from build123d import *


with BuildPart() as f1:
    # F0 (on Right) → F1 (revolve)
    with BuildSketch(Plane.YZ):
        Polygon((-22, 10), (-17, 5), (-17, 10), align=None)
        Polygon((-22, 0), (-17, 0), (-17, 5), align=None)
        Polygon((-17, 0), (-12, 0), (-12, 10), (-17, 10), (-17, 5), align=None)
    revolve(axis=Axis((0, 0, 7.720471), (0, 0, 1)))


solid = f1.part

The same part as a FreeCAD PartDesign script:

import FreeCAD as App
import Part
import Sketcher

V = App.Vector
Q = App.Units.Quantity

doc = App.newDocument("Part")
body = doc.addObject("PartDesign::Body", "Body")

# Sketch on YZ plane
sketch1 = body.newObject("Sketcher::SketchObject", "Sketch")
sketch1.AttachmentSupport = (doc.getObject("YZ_Plane"), [""])
sketch1.MapMode = "FlatFace"
sketch1.addGeometry([
    Part.LineSegment(V(-22, 10, 0), V(-17, 5, 0)),  # 0
    Part.LineSegment(V(-17, 5, 0), V(-22, 0, 0)),  # 1
    Part.LineSegment(V(-22, 0, 0), V(-12, 0, 0)),  # 2
    Part.LineSegment(V(-12, 0, 0), V(-12, 10, 0)),  # 3
    Part.LineSegment(V(-12, 10, 0), V(-22, 10, 0)),  # 4
], False)
sketch1.addConstraint([
    Sketcher.Constraint("Coincident", 0, 2, 1, 1),
    Sketcher.Constraint("Coincident", 1, 2, 2, 1),
    Sketcher.Constraint("Coincident", 2, 2, 3, 1),
    Sketcher.Constraint("Coincident", 3, 2, 4, 1),
    Sketcher.Constraint("Coincident", 4, 2, 0, 1),
    Sketcher.Constraint("Horizontal", 2),
    Sketcher.Constraint("Vertical", 3),
    Sketcher.Constraint("Horizontal", 4),
    Sketcher.Constraint("PointOnObject", 1, 2, -1),
    Sketcher.Constraint("Perpendicular", 0, 1),
    Sketcher.Constraint("Vertical", 1, 2, 4, 2),
    Sketcher.Constraint("Equal", 4, 3),
    Sketcher.Constraint("Equal", 0, 1),
    Sketcher.Constraint("DistanceX", 2, 1, 2, 2, Q("10 mm")),
    Sketcher.Constraint("DistanceX", 0, 2, -1, 1, Q("17 mm")),
])
revolution = body.newObject("PartDesign::Revolution", "Revolution")
revolution.Profile = sketch1
revolution.ReferenceAxis = (sketch1, ["V_Axis"])
revolution.Angle = 360

doc.recompute()
